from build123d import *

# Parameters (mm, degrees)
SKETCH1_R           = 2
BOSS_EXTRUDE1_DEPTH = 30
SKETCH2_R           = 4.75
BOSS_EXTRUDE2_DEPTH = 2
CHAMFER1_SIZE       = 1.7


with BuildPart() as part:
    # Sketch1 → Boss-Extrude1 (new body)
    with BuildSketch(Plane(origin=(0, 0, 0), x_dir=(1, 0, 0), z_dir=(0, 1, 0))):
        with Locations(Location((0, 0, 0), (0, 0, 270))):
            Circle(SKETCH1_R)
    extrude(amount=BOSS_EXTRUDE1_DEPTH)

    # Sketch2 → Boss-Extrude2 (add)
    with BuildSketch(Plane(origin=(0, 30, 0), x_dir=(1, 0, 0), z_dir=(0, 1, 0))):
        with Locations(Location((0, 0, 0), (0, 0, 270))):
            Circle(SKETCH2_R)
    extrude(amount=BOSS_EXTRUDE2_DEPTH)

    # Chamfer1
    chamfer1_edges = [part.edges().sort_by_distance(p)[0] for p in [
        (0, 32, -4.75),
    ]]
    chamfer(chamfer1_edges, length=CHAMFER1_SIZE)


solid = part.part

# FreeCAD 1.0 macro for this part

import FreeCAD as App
import Part
import Sketcher


def edges_at(feature, points):
    """Names of the edges that pass closest to the given points."""
    edges = feature.Shape.Edges
    near = lambda p: min(range(len(edges)), key=lambda i: edges[i].distToShape(Part.Vertex(*p))[0])
    return sorted({f"Edge{near(p) + 1}" for p in points})

doc = App.newDocument("Part")
body = doc.addObject("PartDesign::Body", "Body")

# Sketch on XZ plane
sketch1 = body.newObject("Sketcher::SketchObject", "Sketch")
sketch1.AttachmentSupport = (doc.getObject("XZ_Plane"), [""])
sketch1.MapMode = "FlatFace"
sketch1.addGeometry(Part.Circle(App.Vector(0, 0, 0), App.Vector(0, 0, 1), 2), False)
sketch1.addConstraint([
    Sketcher.Constraint("Coincident", 0, 3, -1, 1),
    Sketcher.Constraint("Diameter", 0, 4.0),
])
pad1 = body.newObject("PartDesign::Pad", "Pad")
pad1.Profile = sketch1
pad1.Length = 30
pad1.Reversed = True

# Sketch on XZ plane
sketch2 = body.newObject("Sketcher::SketchObject", "Sketch001")
sketch2.AttachmentSupport = (doc.getObject("XZ_Plane"), [""])
sketch2.MapMode = "FlatFace"
sketch2.AttachmentOffset = App.Placement(App.Vector(0, 0, -30), App.Rotation())
sketch2.addGeometry(Part.Circle(App.Vector(0, 0, 0), App.Vector(0, 0, 1), 4.75), False)
sketch2.addConstraint([
    Sketcher.Constraint("Coincident", 0, 3, -1, 1),
    Sketcher.Constraint("Diameter", 0, 9.5),
])
pad2 = body.newObject("PartDesign::Pad", "Pad001")
pad2.Profile = sketch2
pad2.Length = 2
pad2.Reversed = True
doc.recompute()

chamfer = body.newObject("PartDesign::Chamfer", "Chamfer")
chamfer.Base = (pad2, edges_at(pad2, [(0, 32, -4.75)]))
chamfer.Size = 1.7

doc.recompute()
